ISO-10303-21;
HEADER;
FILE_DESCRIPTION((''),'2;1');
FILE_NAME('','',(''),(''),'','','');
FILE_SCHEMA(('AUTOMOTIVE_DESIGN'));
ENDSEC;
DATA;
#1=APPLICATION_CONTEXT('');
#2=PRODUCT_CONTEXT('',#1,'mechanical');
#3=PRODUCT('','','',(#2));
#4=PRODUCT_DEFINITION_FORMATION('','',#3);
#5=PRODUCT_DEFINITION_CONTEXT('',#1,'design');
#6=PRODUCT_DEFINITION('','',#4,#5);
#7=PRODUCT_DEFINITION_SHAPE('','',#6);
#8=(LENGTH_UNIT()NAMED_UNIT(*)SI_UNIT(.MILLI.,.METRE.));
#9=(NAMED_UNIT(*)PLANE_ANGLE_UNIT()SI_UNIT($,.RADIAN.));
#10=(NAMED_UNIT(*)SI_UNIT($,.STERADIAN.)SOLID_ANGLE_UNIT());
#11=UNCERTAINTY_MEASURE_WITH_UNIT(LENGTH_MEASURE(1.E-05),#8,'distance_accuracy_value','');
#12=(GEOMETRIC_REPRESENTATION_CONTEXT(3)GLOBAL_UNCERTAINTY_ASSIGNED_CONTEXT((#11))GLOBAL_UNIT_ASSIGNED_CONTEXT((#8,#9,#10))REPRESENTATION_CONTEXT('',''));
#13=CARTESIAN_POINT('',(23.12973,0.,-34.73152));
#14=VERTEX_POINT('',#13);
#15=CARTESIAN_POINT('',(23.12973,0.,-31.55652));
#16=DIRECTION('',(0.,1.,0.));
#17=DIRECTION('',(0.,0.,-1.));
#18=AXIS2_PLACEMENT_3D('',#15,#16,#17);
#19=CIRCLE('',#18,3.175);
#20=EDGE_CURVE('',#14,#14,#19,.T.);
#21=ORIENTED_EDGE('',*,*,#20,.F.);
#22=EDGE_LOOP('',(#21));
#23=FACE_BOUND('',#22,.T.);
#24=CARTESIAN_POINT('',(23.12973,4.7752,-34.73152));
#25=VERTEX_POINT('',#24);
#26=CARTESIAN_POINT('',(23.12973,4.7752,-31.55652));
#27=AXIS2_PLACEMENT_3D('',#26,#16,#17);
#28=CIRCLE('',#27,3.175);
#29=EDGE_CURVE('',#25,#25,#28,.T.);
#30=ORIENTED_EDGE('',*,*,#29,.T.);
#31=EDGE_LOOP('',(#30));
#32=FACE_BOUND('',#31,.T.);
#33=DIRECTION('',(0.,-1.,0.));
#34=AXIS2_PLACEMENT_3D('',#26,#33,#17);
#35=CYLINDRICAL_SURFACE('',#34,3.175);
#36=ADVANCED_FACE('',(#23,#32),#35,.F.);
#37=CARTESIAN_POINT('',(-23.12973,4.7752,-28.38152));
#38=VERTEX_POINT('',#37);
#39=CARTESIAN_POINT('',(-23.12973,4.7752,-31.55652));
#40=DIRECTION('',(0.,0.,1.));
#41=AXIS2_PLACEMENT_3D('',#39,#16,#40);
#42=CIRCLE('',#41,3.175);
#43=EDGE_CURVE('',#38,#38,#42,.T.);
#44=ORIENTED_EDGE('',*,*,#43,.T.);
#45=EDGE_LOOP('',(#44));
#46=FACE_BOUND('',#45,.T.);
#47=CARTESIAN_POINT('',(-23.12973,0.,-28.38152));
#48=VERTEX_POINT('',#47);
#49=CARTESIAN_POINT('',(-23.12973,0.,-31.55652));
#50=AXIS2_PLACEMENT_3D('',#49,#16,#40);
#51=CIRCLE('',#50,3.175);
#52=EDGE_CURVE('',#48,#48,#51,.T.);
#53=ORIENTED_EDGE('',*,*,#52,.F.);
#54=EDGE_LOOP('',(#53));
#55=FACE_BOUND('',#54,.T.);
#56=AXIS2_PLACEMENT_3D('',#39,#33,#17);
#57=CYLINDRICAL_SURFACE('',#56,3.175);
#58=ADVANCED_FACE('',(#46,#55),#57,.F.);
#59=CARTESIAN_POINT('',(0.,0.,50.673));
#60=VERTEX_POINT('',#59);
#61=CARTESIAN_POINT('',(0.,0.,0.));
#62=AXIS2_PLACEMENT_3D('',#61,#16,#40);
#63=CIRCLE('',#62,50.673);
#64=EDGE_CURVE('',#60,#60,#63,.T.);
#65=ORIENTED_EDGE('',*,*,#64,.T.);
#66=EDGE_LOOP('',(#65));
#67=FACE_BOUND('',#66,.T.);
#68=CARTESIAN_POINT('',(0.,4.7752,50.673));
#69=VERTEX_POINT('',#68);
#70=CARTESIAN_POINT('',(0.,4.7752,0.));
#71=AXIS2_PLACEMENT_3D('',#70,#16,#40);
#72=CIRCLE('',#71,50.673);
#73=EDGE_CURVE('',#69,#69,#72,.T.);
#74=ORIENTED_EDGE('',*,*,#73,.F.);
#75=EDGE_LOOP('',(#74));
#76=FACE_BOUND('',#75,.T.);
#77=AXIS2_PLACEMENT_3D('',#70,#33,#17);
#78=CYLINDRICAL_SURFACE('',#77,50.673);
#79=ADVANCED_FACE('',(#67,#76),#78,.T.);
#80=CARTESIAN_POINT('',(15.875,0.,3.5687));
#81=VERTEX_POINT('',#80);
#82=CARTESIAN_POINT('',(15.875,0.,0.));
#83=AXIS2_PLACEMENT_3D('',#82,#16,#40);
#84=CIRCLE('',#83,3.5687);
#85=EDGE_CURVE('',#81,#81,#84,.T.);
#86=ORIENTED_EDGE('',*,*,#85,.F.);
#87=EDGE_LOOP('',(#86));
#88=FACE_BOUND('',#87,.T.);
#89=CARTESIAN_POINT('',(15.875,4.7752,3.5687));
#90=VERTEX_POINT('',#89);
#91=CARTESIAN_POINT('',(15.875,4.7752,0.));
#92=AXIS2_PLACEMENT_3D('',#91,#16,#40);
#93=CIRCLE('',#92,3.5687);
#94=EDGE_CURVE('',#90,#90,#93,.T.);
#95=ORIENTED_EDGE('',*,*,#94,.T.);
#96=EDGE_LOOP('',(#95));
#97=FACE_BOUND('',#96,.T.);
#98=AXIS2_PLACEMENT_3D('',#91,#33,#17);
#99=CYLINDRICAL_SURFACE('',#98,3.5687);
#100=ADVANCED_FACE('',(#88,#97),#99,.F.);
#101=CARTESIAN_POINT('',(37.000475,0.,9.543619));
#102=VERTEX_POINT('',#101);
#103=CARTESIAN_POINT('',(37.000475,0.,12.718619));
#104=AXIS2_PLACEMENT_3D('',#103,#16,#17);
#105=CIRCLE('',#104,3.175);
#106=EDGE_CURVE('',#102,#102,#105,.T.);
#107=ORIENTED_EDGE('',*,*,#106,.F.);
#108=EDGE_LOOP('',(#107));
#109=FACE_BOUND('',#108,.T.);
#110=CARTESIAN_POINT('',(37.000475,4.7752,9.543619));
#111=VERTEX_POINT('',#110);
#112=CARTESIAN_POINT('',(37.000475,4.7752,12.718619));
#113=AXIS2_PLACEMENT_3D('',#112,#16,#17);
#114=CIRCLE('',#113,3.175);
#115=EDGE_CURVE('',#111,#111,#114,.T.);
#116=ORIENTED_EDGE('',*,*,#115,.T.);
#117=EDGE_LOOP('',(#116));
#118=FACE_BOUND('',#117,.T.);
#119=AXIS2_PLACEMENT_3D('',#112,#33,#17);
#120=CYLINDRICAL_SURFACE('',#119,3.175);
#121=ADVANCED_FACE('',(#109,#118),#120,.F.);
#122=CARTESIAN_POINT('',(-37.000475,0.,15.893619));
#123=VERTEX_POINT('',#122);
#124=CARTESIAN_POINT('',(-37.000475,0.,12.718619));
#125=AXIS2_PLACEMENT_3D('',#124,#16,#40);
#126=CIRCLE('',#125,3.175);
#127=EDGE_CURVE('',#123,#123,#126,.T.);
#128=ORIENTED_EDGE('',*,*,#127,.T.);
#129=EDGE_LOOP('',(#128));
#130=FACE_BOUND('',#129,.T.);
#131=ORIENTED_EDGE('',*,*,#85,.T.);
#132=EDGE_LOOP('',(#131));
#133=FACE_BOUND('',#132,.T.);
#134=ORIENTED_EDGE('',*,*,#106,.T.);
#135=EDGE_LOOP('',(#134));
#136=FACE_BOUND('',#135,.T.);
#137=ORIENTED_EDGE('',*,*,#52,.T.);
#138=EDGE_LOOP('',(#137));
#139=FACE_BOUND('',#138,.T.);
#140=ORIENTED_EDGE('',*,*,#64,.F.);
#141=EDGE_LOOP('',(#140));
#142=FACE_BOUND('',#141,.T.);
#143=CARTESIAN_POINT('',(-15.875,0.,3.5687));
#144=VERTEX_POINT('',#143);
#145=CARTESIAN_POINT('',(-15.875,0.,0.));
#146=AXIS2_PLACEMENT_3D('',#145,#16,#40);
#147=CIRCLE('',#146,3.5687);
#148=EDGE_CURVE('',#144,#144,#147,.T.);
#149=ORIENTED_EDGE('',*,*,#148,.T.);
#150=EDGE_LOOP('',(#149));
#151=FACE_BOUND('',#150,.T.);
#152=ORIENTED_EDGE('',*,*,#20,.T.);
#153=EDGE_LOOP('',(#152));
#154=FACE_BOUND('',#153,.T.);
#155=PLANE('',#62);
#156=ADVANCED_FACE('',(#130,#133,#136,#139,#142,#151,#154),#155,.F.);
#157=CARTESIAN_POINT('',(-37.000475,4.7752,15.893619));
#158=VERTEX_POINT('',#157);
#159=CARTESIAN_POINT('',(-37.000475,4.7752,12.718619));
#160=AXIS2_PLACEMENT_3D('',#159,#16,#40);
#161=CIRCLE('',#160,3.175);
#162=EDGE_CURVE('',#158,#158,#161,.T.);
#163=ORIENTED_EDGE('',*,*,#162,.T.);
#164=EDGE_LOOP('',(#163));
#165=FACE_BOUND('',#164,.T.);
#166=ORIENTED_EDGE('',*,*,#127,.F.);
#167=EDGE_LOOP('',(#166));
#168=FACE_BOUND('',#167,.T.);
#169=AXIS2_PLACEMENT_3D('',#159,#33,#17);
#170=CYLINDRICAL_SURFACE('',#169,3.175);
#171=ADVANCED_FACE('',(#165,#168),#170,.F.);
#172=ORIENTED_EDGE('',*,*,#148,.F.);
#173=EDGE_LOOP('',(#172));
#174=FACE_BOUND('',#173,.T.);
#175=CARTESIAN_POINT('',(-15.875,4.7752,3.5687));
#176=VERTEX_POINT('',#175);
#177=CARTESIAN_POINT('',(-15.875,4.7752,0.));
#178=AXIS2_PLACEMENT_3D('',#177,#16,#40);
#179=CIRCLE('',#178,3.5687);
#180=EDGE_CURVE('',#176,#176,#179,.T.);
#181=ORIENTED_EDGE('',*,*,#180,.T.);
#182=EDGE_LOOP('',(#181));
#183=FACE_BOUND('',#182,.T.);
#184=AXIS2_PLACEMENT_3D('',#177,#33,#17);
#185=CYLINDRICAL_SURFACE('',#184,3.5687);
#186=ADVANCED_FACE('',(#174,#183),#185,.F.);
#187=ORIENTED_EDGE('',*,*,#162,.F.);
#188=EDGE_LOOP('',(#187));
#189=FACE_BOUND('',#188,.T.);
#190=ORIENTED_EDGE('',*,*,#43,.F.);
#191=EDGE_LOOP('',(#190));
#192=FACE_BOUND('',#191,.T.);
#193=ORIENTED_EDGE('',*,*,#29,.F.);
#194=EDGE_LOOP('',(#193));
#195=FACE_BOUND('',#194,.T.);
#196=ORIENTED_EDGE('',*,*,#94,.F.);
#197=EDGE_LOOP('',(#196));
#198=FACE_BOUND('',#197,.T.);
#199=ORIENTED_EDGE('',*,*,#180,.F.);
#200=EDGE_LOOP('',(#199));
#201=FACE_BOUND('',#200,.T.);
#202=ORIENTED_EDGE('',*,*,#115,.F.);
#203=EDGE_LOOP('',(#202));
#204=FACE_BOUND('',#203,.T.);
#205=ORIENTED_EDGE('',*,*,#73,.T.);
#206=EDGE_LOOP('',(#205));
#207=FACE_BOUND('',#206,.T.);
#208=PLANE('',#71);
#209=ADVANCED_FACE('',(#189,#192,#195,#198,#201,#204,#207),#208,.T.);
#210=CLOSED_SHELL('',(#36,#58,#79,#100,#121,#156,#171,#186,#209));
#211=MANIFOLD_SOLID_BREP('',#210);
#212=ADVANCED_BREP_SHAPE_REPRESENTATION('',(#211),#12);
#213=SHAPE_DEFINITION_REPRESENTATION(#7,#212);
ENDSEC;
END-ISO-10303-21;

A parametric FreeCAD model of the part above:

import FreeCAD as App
import Part
import Sketcher
from FreeCAD import Vector
Q = App.Units.Quantity

doc = App.newDocument("Part")
params = doc.addObject("Spreadsheet::Sheet", "Params")
for row, (alias, value) in enumerate([
    ("sketch1_diameter", "3.99 in"),
    ("sketch1_diameter2", "0.25 in"),
    ("sketch1_diameter3", "0.281 in"),
    ("pad1_length", "0.188 in"),
], start=1):
    params.set(f"A{row}", alias)
    params.set(f"B{row}", "=" + value)
    params.setAlias(f"B{row}", alias)

body = doc.addObject("PartDesign::Body", "Body")

# Sketch on XZ plane
sketch1 = body.newObject("Sketcher::SketchObject", "Sketch")
sketch1.AttachmentSupport = (doc.getObject("XZ_Plane"), [""])
sketch1.MapMode = "FlatFace"
sketch1.addGeometry(Part.Circle(Vector(0, 0, 0), Vector(0, 0, 1), 50.7), False)
sketch1.addGeometry(Part.Circle(Vector(-23.1, -31.6, 0), Vector(0, 0, 1), 3.2), False)
sketch1.addGeometry(Part.Circle(Vector(-37, 12.7, 0), Vector(0, 0, 1), 3.2), False)
sketch1.addGeometry(Part.Circle(Vector(-15.9, 0, 0), Vector(0, 0, 1), 3.6), False)
sketch1.addGeometry(Part.Circle(Vector(23.1, -31.6, 0), Vector(0, 0, 1), 3.2), False)
sketch1.addGeometry(Part.Circle(Vector(15.9, 0, 0), Vector(0, 0, 1), 3.6), False)
sketch1.addGeometry(Part.Circle(Vector(37, 12.7, 0), Vector(0, 0, 1), 3.2), False)
sketch1.addConstraint(Sketcher.Constraint("Coincident", 0, 3, -1, 1))
sketch1.addConstraint(Sketcher.Constraint("Equal", 1, 2))
sketch1.addConstraint(Sketcher.Constraint("Equal", 2, 4))
sketch1.addConstraint(Sketcher.Constraint("Equal", 3, 5))
sketch1.addConstraint(Sketcher.Constraint("Equal", 4, 6))
sketch1.addConstraint(Sketcher.Constraint("Symmetric", 3, 3, 5, 3, -1, 1))
sketch1.addConstraint(Sketcher.Constraint("Symmetric", 1, 3, 4, 3, -2))
sketch1.addConstraint(Sketcher.Constraint("Symmetric", 2, 3, 6, 3, -2))
sketch1.addConstraint(Sketcher.Constraint("PointOnObject", 3, 3, -1))
sketch1.addConstraint(Sketcher.Constraint("Diameter", 0, Q("3.99 in")))
sketch1.addConstraint(Sketcher.Constraint("Diameter", 1, Q("0.25 in")))
sketch1.addConstraint(Sketcher.Constraint("Diameter", 3, Q("0.281 in")))
sketch1.addConstraint(Sketcher.Constraint("DistanceX", 3, 3, 5, 3, Q("1.25 in")))
sketch1.addConstraint(Sketcher.Constraint("DistanceX", 1, 3, -1, 1, 23.12973))
sketch1.addConstraint(Sketcher.Constraint("DistanceY", 1, 3, -1, 1, 31.55652))
sketch1.addConstraint(Sketcher.Constraint("DistanceY", -1, 1, 2, 3, 12.718619))
sketch1.addConstraint(Sketcher.Constraint("DistanceX", 2, 3, 6, 3, 74.00095))
sketch1.setExpression("Constraints[9]", "Params.sketch1_diameter")
sketch1.setExpression("Constraints[10]", "Params.sketch1_diameter2")
sketch1.setExpression("Constraints[11]", "Params.sketch1_diameter3")
pad1 = body.newObject("PartDesign::Pad", "Pad")
pad1.Profile = sketch1
pad1.setExpression("Length", "Params.pad1_length")
pad1.Reversed = True

doc.recompute()
